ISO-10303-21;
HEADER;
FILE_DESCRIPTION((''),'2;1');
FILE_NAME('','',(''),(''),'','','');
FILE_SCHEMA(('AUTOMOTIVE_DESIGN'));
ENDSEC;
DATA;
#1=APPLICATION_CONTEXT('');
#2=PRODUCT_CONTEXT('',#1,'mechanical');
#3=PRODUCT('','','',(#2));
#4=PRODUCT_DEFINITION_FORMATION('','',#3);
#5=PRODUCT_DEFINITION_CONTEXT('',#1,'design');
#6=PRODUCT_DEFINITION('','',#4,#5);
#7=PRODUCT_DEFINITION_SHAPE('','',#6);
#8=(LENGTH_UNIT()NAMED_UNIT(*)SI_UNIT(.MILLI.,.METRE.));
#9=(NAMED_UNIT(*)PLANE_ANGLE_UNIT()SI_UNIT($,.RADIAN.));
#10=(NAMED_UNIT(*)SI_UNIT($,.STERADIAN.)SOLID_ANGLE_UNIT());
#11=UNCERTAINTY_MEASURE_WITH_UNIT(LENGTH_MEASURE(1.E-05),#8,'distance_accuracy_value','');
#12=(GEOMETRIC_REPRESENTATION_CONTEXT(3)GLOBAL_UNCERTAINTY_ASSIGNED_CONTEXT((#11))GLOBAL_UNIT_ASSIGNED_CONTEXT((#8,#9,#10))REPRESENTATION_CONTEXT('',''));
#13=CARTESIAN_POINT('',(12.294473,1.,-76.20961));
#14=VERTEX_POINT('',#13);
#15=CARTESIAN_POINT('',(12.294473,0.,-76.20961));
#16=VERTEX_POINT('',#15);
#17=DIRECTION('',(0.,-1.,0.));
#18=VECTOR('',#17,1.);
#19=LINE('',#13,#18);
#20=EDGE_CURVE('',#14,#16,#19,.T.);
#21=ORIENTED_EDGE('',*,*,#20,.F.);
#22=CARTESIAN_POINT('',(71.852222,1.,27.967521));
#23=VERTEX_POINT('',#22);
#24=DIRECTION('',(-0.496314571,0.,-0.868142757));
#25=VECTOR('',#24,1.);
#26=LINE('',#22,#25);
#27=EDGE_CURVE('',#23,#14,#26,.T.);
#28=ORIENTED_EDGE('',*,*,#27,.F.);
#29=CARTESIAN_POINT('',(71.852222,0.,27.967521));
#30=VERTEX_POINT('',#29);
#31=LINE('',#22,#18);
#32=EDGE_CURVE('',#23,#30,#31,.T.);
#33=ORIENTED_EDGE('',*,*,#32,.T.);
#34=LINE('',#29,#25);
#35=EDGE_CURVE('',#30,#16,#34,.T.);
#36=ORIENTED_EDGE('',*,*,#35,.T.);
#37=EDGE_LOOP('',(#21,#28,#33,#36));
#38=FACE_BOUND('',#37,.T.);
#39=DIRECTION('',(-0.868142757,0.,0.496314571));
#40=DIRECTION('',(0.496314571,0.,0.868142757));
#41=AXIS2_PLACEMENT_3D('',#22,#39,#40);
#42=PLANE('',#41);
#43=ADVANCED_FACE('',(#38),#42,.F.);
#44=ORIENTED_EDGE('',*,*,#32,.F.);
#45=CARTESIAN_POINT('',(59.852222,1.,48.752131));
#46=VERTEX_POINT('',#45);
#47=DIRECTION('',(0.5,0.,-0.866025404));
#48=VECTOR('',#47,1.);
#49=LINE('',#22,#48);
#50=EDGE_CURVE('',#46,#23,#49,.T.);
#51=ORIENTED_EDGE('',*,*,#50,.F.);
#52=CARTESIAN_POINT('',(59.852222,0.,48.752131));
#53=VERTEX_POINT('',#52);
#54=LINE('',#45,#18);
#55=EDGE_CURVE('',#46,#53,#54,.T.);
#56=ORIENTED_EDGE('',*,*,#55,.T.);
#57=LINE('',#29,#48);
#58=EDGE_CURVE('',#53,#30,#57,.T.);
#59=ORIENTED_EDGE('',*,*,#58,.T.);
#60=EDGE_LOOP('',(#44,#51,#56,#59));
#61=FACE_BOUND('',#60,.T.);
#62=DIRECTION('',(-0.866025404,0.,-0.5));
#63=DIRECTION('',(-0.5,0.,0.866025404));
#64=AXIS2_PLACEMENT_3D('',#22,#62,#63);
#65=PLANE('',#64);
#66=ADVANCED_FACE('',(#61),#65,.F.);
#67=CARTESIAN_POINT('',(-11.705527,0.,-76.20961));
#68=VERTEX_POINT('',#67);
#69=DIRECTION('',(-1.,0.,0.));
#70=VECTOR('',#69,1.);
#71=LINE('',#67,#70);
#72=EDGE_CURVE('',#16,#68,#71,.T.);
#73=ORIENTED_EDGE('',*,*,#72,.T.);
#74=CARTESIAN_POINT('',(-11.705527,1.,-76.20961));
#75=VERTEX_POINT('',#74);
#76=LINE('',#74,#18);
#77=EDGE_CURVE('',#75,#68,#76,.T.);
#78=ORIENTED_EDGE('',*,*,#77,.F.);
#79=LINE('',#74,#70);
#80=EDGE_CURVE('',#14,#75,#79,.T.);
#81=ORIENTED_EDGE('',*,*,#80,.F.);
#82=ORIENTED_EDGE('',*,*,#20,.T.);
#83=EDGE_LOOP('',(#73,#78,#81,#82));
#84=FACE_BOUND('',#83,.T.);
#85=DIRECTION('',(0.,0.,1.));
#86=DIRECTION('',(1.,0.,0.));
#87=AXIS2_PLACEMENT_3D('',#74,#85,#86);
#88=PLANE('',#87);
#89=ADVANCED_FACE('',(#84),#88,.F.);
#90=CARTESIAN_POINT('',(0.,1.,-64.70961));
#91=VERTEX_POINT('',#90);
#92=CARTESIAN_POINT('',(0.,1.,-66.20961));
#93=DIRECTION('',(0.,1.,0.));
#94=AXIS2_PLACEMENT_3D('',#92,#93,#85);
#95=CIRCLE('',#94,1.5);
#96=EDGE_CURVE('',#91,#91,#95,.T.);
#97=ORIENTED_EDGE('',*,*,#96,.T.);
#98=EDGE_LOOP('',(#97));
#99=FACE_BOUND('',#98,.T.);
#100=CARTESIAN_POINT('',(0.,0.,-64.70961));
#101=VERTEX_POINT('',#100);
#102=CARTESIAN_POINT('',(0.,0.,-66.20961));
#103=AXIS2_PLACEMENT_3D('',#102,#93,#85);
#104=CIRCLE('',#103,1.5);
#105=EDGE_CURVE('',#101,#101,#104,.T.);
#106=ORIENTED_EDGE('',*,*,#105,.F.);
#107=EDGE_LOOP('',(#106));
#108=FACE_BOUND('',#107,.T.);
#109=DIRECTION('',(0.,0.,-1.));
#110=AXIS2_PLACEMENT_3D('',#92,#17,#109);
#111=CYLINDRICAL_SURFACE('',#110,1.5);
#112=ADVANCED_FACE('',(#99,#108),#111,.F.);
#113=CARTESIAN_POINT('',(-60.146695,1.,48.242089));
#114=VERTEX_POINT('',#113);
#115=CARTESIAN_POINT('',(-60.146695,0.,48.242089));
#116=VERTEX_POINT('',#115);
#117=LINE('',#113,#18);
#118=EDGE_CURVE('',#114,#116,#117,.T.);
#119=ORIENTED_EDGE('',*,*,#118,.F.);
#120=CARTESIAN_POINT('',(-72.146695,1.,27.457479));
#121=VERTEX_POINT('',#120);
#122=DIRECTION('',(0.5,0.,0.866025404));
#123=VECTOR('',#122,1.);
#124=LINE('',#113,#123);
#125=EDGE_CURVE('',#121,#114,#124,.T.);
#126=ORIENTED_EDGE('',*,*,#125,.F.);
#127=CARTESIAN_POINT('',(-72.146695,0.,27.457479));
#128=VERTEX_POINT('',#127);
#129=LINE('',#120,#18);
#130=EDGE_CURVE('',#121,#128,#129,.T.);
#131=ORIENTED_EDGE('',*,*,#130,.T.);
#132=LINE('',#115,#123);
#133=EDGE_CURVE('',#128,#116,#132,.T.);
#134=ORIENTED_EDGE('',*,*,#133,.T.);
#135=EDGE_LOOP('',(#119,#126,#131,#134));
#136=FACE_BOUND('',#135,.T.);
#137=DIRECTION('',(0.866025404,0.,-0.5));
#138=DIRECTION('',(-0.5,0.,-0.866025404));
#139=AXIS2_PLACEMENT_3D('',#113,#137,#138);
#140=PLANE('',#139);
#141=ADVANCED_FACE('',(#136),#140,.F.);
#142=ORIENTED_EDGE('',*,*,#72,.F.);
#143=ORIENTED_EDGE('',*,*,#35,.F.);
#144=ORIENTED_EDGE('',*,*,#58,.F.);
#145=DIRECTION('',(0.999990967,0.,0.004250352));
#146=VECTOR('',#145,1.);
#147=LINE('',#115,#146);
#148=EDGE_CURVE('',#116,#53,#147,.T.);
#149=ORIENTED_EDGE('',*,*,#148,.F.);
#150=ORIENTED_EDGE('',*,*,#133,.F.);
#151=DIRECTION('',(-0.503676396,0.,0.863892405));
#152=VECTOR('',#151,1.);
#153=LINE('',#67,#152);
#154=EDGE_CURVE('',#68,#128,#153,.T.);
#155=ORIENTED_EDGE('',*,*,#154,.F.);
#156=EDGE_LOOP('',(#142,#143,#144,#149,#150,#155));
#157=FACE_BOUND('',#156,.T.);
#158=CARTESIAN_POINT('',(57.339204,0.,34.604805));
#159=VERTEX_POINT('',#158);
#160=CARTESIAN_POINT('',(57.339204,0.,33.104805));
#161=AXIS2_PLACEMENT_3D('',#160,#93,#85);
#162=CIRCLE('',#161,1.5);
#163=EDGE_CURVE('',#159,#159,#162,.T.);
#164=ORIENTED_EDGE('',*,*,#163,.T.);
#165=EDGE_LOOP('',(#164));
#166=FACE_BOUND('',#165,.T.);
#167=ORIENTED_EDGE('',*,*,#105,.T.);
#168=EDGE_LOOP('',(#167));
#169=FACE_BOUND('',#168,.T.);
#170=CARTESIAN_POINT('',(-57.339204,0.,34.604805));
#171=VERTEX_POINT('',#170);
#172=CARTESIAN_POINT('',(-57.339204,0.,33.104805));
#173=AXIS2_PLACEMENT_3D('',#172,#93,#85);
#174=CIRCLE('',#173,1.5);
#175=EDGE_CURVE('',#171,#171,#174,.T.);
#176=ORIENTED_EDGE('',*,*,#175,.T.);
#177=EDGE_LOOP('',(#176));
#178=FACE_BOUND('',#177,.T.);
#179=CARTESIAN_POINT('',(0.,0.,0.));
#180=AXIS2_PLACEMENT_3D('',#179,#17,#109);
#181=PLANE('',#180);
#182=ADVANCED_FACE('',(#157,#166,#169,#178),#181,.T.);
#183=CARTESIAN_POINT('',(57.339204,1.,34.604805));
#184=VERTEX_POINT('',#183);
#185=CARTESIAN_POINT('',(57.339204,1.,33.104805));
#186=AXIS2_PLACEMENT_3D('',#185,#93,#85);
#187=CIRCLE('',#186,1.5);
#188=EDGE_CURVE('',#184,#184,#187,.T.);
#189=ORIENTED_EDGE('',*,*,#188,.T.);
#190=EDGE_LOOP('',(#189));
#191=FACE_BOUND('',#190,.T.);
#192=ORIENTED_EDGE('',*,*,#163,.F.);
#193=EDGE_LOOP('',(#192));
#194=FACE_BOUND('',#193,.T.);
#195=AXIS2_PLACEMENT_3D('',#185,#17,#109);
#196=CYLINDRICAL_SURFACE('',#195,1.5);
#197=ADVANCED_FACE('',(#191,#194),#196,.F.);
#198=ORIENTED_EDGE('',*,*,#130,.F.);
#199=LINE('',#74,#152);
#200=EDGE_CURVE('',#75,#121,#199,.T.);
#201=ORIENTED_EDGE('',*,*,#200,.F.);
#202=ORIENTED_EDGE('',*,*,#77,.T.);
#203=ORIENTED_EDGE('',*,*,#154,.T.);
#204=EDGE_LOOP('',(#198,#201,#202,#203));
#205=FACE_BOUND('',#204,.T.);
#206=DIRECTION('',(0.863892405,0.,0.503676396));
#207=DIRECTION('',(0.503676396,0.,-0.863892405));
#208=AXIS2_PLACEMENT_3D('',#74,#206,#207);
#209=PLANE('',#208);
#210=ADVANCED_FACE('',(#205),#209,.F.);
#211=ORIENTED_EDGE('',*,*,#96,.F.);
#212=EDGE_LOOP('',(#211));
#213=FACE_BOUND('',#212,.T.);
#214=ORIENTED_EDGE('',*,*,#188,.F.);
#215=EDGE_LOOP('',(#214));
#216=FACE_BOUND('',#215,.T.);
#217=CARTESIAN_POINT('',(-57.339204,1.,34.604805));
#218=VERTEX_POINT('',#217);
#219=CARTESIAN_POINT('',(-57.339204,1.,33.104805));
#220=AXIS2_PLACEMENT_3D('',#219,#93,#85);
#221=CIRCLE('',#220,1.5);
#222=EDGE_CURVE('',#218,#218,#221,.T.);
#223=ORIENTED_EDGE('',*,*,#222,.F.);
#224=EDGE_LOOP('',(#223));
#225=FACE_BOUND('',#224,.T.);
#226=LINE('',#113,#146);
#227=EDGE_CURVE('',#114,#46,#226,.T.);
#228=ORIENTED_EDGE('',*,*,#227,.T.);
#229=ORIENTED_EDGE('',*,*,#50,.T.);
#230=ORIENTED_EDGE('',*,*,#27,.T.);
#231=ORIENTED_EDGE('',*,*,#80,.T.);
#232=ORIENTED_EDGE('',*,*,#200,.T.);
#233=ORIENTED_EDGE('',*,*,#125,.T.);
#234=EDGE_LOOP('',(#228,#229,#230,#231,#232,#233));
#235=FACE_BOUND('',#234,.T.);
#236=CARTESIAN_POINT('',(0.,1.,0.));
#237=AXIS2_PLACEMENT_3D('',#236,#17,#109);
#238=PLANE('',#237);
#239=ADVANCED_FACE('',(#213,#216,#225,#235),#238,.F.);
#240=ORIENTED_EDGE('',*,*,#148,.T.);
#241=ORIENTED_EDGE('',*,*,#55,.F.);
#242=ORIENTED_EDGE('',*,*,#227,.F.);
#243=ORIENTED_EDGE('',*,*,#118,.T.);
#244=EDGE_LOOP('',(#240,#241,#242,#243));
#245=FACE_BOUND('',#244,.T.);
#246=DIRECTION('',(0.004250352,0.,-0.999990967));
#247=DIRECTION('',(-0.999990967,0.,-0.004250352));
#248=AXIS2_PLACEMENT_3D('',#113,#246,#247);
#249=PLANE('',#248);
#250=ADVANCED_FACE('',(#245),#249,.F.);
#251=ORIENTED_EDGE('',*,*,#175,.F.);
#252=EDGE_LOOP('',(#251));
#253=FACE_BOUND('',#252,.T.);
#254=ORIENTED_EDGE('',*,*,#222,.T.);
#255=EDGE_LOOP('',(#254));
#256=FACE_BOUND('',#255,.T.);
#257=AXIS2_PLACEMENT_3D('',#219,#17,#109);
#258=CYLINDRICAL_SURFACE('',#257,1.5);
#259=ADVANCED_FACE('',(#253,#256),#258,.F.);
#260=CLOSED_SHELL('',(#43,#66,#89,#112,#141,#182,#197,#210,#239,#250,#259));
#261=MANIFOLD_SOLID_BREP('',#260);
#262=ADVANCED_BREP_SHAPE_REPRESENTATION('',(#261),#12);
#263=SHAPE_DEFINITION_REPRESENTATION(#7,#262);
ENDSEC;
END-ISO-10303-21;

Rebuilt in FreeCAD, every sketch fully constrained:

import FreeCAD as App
import Part
import Sketcher
from FreeCAD import Vector
Q = App.Units.Quantity


def add_polygon(sketch, points):
    """Adds a closed chain of lines whose ends are joined by coincident constraints."""
    first, n = sketch.GeometryCount, len(points)
    for a, b in zip(points, points[1:] + points[:1]):
        sketch.addGeometry(Part.LineSegment(App.Vector(*a, 0), App.Vector(*b, 0)), False)
    for i in range(n):
        sketch.addConstraint(Sketcher.Constraint("Coincident", first + i, 2, first + (i + 1) % n, 1))

doc = App.newDocument("Part")
params = doc.addObject("Spreadsheet::Sheet", "Params")
for row, (alias, value) in enumerate([
    ("sketch1_diameter", "3 mm"),
    ("sketch1_width", "24 mm"),
    ("sketch1_length", "120 mm"),
    ("sketch1_length2", "24 mm"),
    ("pad1_length", "1 mm"),
], start=1):
    params.set(f"A{row}", alias)
    params.set(f"B{row}", "=" + value)
    params.setAlias(f"B{row}", alias)

body = doc.addObject("PartDesign::Body", "Body")

sketch1 = body.newObject("Sketcher::SketchObject", "Sketch")
sketch1.AttachmentSupport = (doc.getObject("XZ_Plane"), [""])
sketch1.MapMode = "FlatFace"
add_polygon(sketch1, [(12.3, -76.2), (-11.7, -76.2), (-72.1, 27.5), (-60.1, 48.2), (59.9, 48.8), (71.9, 28)])
sketch1.addGeometry(Part.Circle(Vector(57.3, 33.1, 0), Vector(0, 0, 1), 1.5), False)
sketch1.addGeometry(Part.Circle(Vector(-57.3, 33.1, 0), Vector(0, 0, 1), 1.5), False)
sketch1.addGeometry(Part.Circle(Vector(0, -66.2, 0), Vector(0, 0, 1), 1.5), False)
sketch1.addConstraint([
    Sketcher.Constraint("Horizontal", 0),
    Sketcher.Constraint("Equal", 6, 7),
    Sketcher.Constraint("Equal", 7, 8),
    Sketcher.Constraint("Symmetric", 6, 3, 7, 3, -2),
    Sketcher.Constraint("PointOnObject", 8, 3, -2),
    Sketcher.Constraint("Equal", 1, 3),
    Sketcher.Constraint("Equal", 2, 4),
    Sketcher.Constraint("Equal", 3, 5),
    Sketcher.Constraint("Diameter", 6, Q("3 mm")),
    Sketcher.Constraint("DistanceX", 0, 2, 0, 1, Q("24 mm")),
    Sketcher.Constraint("Angle", 2, Q("60 deg")),
    Sketcher.Constraint("Angle", 4, Q("-60 deg")),
    Sketcher.Constraint("Distance", 1, Q("120 mm")),
    Sketcher.Constraint("Distance", 2, Q("24 mm")),
    Sketcher.Constraint("DistanceY", 0, 2, 8, 3, Q("10 mm")),
    Sketcher.Constraint("DistanceX", 1, 2, 6, 3, Q("129.485899 mm")),
    Sketcher.Constraint("DistanceY", 8, 3, 2, 2, Q("114.451698 mm")),
    Sketcher.Constraint("DistanceY", 8, 3, -1, 1, Q("66.20961 mm")),
    Sketcher.Constraint("DistanceX", -1, 1, 3, 2, Q("59.852222 mm")),
    Sketcher.Constraint("DistanceY", -1, 1, 6, 3, Q("33.104805 mm")),
])
sketch1.setExpression("Constraints[14]", "Params.sketch1_diameter")
sketch1.setExpression("Constraints[15]", "Params.sketch1_width")
sketch1.setExpression("Constraints[18]", "Params.sketch1_length")
sketch1.setExpression("Constraints[19]", "Params.sketch1_length2")
pad1 = body.newObject("PartDesign::Pad", "Pad")
pad1.Profile = sketch1
pad1.setExpression("Length", "Params.pad1_length")
pad1.Reversed = True

doc.recompute()
